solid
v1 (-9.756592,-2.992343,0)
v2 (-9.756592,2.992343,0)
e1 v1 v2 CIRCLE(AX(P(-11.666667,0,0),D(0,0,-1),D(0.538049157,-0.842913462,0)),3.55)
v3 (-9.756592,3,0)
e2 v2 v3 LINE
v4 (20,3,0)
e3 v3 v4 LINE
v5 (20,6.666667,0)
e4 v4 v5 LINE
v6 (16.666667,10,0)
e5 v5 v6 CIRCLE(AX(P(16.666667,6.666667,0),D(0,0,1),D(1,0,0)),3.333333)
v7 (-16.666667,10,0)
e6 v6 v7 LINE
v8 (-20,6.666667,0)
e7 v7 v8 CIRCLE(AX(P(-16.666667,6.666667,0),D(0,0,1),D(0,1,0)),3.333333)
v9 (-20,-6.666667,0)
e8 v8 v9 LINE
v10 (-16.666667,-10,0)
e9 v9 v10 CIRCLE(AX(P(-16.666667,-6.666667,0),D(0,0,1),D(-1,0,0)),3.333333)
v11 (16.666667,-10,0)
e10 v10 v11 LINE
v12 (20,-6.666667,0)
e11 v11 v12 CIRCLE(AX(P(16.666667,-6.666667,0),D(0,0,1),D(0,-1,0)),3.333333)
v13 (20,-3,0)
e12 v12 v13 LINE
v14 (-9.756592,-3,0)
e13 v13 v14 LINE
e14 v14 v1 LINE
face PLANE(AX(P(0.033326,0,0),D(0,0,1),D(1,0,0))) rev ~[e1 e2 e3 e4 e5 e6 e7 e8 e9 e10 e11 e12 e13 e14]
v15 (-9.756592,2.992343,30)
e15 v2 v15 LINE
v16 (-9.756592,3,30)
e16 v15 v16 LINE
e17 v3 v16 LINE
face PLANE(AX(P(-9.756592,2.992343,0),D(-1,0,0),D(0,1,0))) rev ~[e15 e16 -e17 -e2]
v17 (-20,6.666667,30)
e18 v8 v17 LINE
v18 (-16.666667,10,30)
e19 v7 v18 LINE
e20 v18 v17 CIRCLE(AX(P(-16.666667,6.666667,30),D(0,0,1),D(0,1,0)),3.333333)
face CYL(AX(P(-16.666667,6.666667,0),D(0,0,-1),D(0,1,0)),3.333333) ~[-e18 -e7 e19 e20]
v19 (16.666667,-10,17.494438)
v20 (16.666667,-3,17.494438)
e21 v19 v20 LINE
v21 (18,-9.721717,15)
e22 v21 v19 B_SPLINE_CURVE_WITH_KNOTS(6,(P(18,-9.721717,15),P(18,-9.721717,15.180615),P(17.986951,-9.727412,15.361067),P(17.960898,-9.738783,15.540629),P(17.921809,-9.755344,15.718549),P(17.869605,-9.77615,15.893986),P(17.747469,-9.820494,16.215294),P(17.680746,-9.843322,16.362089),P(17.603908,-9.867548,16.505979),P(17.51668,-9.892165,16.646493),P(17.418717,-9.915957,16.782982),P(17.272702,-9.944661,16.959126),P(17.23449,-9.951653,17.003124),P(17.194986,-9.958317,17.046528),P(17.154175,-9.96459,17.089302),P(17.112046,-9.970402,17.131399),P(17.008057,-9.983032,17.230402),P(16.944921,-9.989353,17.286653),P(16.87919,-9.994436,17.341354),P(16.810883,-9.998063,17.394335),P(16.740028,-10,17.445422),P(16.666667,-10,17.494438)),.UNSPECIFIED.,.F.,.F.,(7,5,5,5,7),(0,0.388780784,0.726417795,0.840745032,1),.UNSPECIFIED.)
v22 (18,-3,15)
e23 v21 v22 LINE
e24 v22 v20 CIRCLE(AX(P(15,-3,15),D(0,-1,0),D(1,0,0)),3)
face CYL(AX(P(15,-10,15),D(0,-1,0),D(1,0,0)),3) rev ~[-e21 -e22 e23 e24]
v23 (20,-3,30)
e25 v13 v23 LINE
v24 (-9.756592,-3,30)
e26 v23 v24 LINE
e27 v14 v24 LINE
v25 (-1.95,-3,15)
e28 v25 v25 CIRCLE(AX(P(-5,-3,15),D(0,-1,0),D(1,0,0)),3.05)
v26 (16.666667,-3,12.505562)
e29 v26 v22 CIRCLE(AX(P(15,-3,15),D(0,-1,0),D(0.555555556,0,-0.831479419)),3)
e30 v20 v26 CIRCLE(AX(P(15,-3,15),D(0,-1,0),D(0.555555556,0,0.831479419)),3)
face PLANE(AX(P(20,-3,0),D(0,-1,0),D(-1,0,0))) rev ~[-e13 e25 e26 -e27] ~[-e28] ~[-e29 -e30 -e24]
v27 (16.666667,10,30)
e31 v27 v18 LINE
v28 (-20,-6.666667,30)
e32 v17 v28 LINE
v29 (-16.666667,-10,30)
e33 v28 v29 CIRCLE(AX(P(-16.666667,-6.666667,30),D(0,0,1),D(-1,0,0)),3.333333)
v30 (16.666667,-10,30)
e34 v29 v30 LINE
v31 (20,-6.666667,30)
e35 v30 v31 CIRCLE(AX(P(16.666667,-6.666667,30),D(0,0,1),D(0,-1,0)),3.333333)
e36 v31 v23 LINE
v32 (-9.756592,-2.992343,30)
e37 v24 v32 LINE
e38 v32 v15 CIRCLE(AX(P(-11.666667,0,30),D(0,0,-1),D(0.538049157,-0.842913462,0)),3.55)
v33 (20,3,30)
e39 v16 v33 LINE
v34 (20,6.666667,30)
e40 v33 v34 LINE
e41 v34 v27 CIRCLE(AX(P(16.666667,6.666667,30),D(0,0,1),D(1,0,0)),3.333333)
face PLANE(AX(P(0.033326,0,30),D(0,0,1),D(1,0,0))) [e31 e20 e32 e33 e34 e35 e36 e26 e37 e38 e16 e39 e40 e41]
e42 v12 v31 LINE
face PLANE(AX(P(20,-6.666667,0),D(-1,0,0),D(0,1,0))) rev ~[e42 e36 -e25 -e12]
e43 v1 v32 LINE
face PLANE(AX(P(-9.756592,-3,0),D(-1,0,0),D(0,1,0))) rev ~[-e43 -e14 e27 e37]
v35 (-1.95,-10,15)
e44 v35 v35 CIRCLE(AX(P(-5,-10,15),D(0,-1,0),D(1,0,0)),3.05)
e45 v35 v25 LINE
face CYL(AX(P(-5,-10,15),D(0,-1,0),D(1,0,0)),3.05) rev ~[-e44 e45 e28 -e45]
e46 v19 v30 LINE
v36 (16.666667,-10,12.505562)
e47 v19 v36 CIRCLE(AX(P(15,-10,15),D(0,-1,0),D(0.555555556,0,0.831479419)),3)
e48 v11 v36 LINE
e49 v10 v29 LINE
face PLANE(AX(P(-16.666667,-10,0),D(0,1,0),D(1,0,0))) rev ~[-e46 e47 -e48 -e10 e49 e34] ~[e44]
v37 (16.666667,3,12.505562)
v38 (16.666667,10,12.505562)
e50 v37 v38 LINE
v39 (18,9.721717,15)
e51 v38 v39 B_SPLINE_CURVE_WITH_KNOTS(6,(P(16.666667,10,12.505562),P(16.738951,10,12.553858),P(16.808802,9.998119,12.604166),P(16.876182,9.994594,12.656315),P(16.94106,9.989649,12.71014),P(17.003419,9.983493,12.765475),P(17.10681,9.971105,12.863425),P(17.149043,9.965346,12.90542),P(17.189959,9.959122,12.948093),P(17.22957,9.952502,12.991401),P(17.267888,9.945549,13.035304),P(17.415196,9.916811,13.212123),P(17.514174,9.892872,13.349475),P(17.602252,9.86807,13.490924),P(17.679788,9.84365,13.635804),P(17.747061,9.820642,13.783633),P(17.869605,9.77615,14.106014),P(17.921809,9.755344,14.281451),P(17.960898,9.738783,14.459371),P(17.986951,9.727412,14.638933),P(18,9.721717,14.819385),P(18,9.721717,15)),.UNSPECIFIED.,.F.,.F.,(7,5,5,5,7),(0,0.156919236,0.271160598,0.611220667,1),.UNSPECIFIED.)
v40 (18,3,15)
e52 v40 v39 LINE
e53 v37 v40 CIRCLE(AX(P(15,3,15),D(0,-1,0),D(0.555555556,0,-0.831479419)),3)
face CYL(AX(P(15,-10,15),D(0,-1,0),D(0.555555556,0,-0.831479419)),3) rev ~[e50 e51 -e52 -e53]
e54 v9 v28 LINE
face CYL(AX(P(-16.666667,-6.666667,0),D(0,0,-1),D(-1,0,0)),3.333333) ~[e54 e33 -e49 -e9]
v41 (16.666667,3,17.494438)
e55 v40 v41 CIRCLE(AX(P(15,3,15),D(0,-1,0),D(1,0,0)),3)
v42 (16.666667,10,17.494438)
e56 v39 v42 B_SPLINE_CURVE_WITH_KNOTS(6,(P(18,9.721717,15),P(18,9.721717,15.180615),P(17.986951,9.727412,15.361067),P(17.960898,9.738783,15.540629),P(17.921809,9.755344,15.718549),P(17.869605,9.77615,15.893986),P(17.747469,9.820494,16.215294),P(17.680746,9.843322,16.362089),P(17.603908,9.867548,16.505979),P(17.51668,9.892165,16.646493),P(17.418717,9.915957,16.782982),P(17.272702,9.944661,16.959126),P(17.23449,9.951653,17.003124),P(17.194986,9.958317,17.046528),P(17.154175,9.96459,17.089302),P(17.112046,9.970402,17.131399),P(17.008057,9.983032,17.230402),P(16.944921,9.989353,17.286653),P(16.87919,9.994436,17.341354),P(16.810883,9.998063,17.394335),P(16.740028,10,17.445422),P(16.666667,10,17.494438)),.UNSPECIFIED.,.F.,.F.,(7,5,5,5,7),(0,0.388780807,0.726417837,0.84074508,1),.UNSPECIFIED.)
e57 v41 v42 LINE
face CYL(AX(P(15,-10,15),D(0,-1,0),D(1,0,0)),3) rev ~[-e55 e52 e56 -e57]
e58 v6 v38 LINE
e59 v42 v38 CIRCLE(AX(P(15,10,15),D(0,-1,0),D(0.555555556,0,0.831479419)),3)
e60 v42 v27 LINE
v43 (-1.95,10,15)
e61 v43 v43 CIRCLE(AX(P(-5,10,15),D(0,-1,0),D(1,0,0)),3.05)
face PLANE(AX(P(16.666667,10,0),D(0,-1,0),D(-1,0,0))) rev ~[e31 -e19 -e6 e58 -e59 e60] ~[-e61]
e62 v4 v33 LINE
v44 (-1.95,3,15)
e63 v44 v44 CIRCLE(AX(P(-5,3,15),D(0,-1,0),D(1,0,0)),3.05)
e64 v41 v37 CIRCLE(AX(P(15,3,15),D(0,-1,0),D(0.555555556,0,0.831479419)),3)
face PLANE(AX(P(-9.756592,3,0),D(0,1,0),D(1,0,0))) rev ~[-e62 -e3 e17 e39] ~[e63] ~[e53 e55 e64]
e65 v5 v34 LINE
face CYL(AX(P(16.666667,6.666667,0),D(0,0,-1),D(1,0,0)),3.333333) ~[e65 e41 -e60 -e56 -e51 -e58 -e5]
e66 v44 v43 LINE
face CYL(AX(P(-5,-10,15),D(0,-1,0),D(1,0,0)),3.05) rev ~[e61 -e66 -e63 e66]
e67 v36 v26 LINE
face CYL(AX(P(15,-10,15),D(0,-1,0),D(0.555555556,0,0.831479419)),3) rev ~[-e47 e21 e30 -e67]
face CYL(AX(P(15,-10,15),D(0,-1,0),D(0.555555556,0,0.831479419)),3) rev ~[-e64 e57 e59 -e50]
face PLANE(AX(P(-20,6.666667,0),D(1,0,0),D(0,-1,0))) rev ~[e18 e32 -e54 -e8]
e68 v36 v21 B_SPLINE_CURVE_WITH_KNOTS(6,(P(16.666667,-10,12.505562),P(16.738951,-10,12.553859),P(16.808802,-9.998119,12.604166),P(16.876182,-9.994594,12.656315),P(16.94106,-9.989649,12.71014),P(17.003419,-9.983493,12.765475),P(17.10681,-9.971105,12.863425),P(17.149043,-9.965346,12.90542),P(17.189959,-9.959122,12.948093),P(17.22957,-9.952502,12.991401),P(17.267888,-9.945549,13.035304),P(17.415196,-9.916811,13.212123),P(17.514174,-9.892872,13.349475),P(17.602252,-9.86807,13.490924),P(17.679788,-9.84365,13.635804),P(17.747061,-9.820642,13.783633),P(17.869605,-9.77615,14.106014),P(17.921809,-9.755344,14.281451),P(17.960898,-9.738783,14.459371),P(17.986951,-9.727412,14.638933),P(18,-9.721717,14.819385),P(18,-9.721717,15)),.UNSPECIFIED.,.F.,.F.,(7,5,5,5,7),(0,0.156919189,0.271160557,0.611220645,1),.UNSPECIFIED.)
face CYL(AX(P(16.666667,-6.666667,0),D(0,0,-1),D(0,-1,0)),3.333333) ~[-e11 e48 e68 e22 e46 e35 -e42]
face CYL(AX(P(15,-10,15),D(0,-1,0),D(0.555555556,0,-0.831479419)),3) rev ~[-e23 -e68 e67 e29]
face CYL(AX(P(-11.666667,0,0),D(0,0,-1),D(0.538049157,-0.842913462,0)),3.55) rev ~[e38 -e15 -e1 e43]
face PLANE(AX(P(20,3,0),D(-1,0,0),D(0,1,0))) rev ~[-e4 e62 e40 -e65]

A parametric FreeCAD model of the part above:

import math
import FreeCAD as App
import Part
import Sketcher
from FreeCAD import Vector

doc = App.newDocument("Part")
body = doc.addObject("PartDesign::Body", "Body")

sketch1 = doc.addObject("Sketcher::SketchObject", "Sketch")
body.addObject(sketch1)
sketch1.AttachmentSupport = (doc.XY_Plane, [""])
sketch1.MapMode = "FlatFace"
sketch1.addGeometry([
    Part.LineSegment(Vector(-20, 6.667, 0), Vector(-20, -6.667, 0)),
    Part.ArcOfCircle(Part.Circle(Vector(-16.667, -6.667, 0), Vector(0, 0, 1), 3.333), math.radians(180), math.radians(270)),
    Part.LineSegment(Vector(-16.667, -10, 0), Vector(16.667, -10, 0)),
    Part.ArcOfCircle(Part.Circle(Vector(16.667, -6.667, 0), Vector(0, 0, 1), 3.333), math.radians(-90), math.radians(0)),
    Part.LineSegment(Vector(20, -6.667, 0), Vector(20, -3, 0)),
    Part.LineSegment(Vector(20, -3, 0), Vector(-9.757, -3, 0)),
    Part.LineSegment(Vector(-9.757, -3, 0), Vector(-9.757, -2.992, 0)),
    Part.ArcOfCircle(Part.Circle(Vector(-11.667, 0, 0), Vector(0, 0, 1), 3.55), math.radians(57), math.radians(303)),
    Part.LineSegment(Vector(-9.757, 2.992, 0), Vector(-9.757, 3, 0)),
    Part.LineSegment(Vector(-9.757, 3, 0), Vector(20, 3, 0)),
    Part.LineSegment(Vector(20, 3, 0), Vector(20, 6.667, 0)),
    Part.ArcOfCircle(Part.Circle(Vector(16.667, 6.667, 0), Vector(0, 0, 1), 3.333), math.radians(0), math.radians(90)),
    Part.LineSegment(Vector(16.667, 10, 0), Vector(-16.667, 10, 0)),
    Part.ArcOfCircle(Part.Circle(Vector(-16.667, 6.667, 0), Vector(0, 0, 1), 3.333), math.radians(90), math.radians(180)),
], False)
sketch1.addConstraint([
    Sketcher.Constraint("Tangent", 0, 2, 1, 1),
    Sketcher.Constraint("Tangent", 1, 2, 2, 1),
    Sketcher.Constraint("Tangent", 2, 2, 3, 1),
    Sketcher.Constraint("Tangent", 3, 2, 4, 1),
    Sketcher.Constraint("Coincident", 4, 2, 5, 1),
    Sketcher.Constraint("Coincident", 5, 2, 6, 1),
    Sketcher.Constraint("Coincident", 6, 2, 7, 2),
    Sketcher.Constraint("Coincident", 7, 1, 8, 1),
    Sketcher.Constraint("Coincident", 8, 2, 9, 1),
    Sketcher.Constraint("Coincident", 9, 2, 10, 1),
    Sketcher.Constraint("Tangent", 10, 2, 11, 1),
    Sketcher.Constraint("Tangent", 11, 2, 12, 1),
    Sketcher.Constraint("Tangent", 12, 2, 13, 1),
    Sketcher.Constraint("Tangent", 13, 2, 0, 1),
    Sketcher.Constraint("Vertical", 0),
    Sketcher.Constraint("Horizontal", 2),
    Sketcher.Constraint("Vertical", 4),
    Sketcher.Constraint("Horizontal", 5),
    Sketcher.Constraint("Vertical", 6),
    Sketcher.Constraint("Vertical", 8),
    Sketcher.Constraint("Horizontal", 9),
    Sketcher.Constraint("Vertical", 10),
    Sketcher.Constraint("Horizontal", 12),
    Sketcher.Constraint("Equal", 1, 3),
    Sketcher.Constraint("Equal", 3, 11),
    Sketcher.Constraint("Equal", 11, 13),
    Sketcher.Constraint("Symmetric", 1, 3, 11, 3, -1, 1),
    Sketcher.Constraint("Symmetric", 6, 2, 7, 1, -1),
    Sketcher.Constraint("Symmetric", 4, 2, 9, 2, -1),
    Sketcher.Constraint("Radius", 7, 3.55),
    Sketcher.Constraint("DistanceX", 0, 2, -1, 1, 20.0),
    Sketcher.Constraint("DistanceY", 1, 2, -1, 1, 10.0),
    Sketcher.Constraint("DistanceY", 4, 2, -1, 1, 3.0),
    Sketcher.Constraint("DistanceX", 1, 3, 7, 3, 5.0),
    Sketcher.Constraint("Radius", 1, 3.333333),
    Sketcher.Constraint("DistanceX", 5, 2, 5, 1, 29.756592),
])
pad1 = doc.addObject("PartDesign::Pad", "Pad")
body.addObject(pad1)
pad1.Profile = sketch1
pad1.Length = 30

sketch2 = doc.addObject("Sketcher::SketchObject", "Sketch001")
body.addObject(sketch2)
sketch2.AttachmentSupport = (doc.XZ_Plane, [""])
sketch2.MapMode = "FlatFace"
sketch2.AttachmentOffset = App.Placement(Vector(0, 0, 10), App.Rotation())
sketch2.addGeometry([
    Part.Circle(Vector(-5, 15, 0), Vector(0, 0, 1), 3),
    Part.ArcOfCircle(Part.Circle(Vector(15, 15, 0), Vector(0, 0, 1), 3), math.radians(56), math.radians(304)),
    Part.ArcOfCircle(Part.Circle(Vector(15, 15, 0), Vector(0, 0, 1), 3), math.radians(-56), math.radians(0)),
    Part.ArcOfCircle(Part.Circle(Vector(15, 15, 0), Vector(0, 0, 1), 3), math.radians(0), math.radians(56)),
], False)
sketch2.addConstraint([
    Sketcher.Constraint("Tangent", 1, 2, 2, 1),
    Sketcher.Constraint("Tangent", 2, 2, 3, 1),
    Sketcher.Constraint("Tangent", 3, 2, 1, 1),
    Sketcher.Constraint("Horizontal", 0, 3, 1, 3),
    Sketcher.Constraint("Horizontal", 3, 3, 2, 2),
    Sketcher.Constraint("Vertical", 1, 2, 3, 2),
    Sketcher.Constraint("Radius", 1, 3.0),
    Sketcher.Constraint("Diameter", 0, 6.1),
    Sketcher.Constraint("DistanceX", 0, 3, -1, 1, 5.0),
    Sketcher.Constraint("DistanceY", -1, 1, 0, 3, 15.0),
    Sketcher.Constraint("DistanceX", -1, 1, 1, 3, 15.0),
    Sketcher.Constraint("DistanceY", -1, 1, 1, 2, 12.505562),
])
pocket1 = doc.addObject("PartDesign::Pocket", "Pocket")
body.addObject(pocket1)
pocket1.Profile = sketch2
pocket1.Length = 30

doc.recompute()
